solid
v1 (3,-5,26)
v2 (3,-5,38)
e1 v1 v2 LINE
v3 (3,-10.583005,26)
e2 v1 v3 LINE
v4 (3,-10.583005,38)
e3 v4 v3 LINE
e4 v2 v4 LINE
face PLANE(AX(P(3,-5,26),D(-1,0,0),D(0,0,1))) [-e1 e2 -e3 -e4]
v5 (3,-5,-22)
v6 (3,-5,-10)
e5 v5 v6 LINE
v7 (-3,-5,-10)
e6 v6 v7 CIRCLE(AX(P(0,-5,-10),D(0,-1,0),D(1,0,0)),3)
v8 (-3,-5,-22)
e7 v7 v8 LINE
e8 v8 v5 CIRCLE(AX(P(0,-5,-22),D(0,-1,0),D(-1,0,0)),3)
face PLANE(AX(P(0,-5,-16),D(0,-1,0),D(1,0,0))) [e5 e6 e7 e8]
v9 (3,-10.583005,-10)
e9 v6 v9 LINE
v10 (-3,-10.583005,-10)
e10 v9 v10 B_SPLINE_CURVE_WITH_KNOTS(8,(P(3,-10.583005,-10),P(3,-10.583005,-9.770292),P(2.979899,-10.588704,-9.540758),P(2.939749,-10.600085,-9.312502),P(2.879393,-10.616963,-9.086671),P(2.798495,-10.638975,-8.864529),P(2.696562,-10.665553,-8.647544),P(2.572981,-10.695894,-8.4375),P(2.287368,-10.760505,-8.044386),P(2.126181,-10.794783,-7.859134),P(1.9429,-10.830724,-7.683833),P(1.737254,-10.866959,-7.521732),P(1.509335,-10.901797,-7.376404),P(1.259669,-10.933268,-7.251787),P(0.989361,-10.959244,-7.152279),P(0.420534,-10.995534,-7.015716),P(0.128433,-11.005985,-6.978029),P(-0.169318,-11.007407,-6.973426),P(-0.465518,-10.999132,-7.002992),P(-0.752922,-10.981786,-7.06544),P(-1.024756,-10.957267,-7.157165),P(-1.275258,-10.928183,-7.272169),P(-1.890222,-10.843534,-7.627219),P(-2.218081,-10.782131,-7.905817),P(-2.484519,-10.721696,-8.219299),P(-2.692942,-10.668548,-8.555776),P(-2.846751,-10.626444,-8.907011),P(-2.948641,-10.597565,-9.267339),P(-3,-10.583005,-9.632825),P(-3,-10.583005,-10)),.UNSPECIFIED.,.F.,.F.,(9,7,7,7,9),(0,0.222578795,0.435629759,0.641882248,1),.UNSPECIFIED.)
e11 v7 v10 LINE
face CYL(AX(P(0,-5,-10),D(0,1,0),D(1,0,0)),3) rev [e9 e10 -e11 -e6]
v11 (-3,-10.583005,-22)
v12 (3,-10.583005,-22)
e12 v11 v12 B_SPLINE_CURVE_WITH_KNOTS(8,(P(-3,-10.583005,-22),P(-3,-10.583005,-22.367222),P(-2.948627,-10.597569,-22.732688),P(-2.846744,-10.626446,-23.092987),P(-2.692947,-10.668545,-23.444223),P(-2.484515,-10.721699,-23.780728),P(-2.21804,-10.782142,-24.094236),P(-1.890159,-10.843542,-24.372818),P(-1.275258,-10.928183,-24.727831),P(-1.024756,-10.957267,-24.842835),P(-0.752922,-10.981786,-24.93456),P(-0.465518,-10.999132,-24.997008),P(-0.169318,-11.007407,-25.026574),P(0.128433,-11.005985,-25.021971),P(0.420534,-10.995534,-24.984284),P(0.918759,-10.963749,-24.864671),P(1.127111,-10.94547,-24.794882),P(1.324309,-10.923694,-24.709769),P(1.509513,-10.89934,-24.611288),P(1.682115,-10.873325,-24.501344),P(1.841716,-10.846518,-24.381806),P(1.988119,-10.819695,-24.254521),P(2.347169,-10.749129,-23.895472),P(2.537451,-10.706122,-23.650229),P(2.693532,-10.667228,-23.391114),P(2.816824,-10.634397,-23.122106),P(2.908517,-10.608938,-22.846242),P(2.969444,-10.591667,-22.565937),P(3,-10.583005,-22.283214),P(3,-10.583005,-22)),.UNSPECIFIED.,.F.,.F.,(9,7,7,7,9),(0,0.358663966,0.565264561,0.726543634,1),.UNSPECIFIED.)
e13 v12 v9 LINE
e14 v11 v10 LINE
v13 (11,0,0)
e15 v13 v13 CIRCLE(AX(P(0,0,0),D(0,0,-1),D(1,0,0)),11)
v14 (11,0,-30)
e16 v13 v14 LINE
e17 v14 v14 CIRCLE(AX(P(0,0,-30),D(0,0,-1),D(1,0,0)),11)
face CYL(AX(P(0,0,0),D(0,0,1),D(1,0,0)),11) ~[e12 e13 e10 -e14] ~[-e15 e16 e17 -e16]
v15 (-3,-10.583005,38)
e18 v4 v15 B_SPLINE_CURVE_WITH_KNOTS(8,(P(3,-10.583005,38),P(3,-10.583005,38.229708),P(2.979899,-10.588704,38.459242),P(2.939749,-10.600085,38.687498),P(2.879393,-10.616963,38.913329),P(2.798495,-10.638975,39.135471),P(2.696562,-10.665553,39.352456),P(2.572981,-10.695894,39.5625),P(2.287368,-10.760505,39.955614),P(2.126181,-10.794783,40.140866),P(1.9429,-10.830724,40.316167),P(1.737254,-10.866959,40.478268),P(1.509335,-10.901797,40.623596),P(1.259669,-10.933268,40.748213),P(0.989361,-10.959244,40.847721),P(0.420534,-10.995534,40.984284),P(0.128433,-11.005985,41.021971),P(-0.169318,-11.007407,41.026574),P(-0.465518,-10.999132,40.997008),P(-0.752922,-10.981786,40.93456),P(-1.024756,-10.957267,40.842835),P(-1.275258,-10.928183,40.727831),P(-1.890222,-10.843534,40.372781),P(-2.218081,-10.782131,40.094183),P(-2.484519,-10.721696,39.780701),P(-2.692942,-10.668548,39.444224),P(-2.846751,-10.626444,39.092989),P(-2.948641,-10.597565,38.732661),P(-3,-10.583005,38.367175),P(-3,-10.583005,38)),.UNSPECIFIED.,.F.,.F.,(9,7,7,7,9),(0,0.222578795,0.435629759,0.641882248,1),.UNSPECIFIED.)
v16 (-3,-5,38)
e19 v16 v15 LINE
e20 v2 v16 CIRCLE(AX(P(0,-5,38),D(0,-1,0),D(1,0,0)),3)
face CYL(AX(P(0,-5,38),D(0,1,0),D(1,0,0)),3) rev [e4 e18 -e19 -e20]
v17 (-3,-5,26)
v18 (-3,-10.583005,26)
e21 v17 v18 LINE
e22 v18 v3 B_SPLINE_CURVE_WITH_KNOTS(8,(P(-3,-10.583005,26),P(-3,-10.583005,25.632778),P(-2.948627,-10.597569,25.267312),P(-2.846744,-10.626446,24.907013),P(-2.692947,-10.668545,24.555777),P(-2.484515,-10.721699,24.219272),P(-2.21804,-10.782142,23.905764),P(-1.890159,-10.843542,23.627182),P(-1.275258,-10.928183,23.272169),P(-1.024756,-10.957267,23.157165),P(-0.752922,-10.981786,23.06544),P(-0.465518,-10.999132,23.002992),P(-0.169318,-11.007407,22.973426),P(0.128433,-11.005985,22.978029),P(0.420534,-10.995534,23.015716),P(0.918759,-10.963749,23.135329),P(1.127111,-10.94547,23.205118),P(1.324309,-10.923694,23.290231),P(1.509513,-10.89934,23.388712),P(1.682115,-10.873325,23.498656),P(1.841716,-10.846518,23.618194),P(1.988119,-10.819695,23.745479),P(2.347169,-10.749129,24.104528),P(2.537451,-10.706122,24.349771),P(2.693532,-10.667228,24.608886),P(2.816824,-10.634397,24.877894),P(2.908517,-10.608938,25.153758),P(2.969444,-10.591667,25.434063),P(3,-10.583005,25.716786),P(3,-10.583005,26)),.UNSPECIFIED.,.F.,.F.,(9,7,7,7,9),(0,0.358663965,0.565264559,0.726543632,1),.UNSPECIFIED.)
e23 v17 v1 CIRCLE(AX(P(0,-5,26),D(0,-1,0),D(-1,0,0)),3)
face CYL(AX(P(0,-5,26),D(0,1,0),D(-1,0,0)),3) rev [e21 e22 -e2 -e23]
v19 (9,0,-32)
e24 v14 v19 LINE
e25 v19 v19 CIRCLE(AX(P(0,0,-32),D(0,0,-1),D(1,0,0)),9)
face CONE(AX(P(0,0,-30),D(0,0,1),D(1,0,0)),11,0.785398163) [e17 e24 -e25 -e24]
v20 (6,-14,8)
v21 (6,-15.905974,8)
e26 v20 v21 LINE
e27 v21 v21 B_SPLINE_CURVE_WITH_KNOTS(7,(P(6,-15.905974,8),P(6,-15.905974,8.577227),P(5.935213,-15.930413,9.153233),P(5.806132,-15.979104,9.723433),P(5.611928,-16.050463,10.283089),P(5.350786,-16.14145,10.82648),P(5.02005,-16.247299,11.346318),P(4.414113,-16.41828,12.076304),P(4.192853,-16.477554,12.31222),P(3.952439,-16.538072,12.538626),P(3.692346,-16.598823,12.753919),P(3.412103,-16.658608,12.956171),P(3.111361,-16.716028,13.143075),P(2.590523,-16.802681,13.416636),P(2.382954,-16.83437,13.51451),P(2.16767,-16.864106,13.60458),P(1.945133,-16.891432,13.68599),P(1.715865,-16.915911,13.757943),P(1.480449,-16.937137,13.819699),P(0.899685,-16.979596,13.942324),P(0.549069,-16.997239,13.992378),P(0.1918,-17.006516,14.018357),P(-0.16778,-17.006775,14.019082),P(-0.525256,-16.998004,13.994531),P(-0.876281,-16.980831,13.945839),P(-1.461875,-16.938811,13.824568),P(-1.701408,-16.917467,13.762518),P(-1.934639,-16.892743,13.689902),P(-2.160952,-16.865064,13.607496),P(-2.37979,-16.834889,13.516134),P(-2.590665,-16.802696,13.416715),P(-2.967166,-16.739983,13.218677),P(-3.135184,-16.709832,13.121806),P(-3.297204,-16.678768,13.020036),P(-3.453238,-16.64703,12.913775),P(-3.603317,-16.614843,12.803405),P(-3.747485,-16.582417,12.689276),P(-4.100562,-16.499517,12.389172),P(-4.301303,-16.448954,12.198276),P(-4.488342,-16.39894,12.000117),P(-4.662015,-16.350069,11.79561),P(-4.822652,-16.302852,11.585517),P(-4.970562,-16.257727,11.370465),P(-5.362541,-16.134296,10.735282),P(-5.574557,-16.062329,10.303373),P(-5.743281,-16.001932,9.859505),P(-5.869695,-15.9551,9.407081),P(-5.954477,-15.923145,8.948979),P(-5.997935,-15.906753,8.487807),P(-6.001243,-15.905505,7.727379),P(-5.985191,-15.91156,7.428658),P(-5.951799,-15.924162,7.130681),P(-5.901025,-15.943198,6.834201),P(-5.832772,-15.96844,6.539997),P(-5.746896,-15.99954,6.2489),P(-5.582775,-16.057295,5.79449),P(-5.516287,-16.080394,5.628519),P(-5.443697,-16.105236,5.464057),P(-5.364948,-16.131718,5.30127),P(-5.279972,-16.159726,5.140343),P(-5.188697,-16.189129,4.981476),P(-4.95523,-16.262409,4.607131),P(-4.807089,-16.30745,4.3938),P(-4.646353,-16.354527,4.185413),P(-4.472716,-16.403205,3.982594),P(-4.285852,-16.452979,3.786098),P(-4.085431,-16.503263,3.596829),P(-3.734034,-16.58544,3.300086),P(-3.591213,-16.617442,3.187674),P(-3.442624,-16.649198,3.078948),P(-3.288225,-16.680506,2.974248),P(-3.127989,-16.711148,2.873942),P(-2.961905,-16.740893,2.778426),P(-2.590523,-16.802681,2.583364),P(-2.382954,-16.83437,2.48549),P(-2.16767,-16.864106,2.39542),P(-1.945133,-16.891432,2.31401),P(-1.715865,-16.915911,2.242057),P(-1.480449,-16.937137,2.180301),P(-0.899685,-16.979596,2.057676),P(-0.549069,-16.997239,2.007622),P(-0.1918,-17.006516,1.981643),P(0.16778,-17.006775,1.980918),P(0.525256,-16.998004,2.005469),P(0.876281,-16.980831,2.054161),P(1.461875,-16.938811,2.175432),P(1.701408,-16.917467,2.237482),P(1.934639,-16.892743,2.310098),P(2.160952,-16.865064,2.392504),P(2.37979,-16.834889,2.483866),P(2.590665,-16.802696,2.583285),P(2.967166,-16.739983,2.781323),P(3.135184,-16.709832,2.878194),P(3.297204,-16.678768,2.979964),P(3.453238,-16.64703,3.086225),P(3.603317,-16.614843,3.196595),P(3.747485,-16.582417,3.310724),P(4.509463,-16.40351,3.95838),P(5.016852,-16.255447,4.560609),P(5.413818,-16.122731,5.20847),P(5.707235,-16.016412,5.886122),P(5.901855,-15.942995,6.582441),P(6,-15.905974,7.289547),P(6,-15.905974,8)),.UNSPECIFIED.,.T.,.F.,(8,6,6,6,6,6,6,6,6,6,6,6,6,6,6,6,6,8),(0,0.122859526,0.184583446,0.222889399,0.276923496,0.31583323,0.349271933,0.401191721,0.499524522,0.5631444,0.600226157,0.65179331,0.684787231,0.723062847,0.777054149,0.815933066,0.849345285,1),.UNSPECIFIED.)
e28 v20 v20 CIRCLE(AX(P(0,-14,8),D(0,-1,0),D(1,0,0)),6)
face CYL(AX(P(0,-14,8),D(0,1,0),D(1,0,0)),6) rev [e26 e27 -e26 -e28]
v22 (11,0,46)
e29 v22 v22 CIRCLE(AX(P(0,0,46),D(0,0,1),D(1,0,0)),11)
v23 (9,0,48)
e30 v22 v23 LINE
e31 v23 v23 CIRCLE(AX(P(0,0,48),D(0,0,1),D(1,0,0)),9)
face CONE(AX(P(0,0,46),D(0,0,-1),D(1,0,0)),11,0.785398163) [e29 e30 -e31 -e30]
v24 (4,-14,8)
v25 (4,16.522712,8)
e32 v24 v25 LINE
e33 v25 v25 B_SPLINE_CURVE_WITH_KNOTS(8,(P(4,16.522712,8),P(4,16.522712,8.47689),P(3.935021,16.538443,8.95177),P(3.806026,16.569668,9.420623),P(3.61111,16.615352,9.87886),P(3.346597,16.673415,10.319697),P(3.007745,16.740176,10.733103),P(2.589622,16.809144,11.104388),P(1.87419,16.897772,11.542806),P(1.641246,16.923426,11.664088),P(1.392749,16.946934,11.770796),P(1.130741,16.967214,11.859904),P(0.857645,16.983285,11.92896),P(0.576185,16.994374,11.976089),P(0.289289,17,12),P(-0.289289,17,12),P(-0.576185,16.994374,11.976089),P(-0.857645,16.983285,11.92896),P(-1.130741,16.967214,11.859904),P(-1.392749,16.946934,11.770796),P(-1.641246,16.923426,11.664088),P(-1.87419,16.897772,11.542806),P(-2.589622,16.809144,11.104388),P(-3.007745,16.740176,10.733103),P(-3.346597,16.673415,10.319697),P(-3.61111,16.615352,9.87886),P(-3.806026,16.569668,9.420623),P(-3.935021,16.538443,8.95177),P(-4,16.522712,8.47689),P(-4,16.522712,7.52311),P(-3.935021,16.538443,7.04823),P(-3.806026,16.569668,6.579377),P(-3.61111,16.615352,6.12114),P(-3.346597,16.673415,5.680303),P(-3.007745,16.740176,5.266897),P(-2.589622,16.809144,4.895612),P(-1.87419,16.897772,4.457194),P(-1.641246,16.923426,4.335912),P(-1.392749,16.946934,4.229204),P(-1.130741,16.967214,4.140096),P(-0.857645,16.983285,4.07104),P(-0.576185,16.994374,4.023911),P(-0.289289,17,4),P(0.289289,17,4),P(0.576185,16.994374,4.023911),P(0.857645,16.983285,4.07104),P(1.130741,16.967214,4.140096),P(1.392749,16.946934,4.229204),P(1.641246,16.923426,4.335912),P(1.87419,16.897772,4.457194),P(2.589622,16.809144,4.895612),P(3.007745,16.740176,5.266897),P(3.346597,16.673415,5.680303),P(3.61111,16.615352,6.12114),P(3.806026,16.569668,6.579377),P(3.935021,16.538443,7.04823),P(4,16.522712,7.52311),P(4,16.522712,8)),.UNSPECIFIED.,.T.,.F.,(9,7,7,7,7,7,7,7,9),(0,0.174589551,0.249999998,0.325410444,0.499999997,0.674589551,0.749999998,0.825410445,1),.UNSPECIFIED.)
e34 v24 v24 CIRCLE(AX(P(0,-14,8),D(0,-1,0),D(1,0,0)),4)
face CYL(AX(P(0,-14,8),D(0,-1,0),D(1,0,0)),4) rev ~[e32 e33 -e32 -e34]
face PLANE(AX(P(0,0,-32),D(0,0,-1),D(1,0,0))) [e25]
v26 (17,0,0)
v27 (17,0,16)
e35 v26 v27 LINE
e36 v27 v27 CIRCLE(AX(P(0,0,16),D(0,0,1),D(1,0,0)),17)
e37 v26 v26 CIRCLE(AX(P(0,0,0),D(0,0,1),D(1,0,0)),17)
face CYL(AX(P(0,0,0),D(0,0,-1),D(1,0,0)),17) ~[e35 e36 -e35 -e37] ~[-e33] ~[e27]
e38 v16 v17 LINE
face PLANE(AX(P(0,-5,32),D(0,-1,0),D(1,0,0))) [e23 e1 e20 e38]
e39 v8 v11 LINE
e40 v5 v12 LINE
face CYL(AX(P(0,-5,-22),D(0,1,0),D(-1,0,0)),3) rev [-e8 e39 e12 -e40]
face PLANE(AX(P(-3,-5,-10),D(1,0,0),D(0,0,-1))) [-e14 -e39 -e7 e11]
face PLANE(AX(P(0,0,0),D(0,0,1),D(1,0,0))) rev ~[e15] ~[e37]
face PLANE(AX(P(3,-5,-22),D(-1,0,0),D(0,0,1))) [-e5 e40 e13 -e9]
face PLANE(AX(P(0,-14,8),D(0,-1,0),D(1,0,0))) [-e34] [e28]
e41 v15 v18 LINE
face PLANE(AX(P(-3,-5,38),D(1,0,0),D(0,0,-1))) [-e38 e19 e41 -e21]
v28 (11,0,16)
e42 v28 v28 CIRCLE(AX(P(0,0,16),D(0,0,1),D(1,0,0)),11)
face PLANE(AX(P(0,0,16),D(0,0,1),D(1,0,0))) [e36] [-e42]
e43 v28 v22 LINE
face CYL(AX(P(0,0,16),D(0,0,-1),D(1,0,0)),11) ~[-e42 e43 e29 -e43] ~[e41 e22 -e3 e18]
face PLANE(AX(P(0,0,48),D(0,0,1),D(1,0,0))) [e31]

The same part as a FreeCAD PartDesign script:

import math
import FreeCAD as App
import Part
import Sketcher

V = App.Vector
Q = App.Units.Quantity


def edges_at(feature, points):
    """Names of the edges that pass closest to the given points."""
    edges = feature.Shape.Edges
    near = lambda p: min(range(len(edges)), key=lambda i: edges[i].distToShape(Part.Vertex(*p))[0])
    return sorted({f"Edge{near(p) + 1}" for p in points})

doc = App.newDocument("Part")
body = doc.addObject("PartDesign::Body", "Body")

# Sketch on XY plane
sketch1 = doc.addObject("Sketcher::SketchObject", "Sketch")
body.addObject(sketch1)
sketch1.AttachmentSupport = (doc.XY_Plane, [""])
sketch1.MapMode = "FlatFace"
sketch1.addGeometry(Part.Circle(V(0, 0, 0), V(0, 0, 1), 17), False)
sketch1.addConstraint(Sketcher.Constraint("Coincident", 0, 3, -1, 1))
sketch1.addConstraint(Sketcher.Constraint("Diameter", 0, Q("34 mm")))
pad1 = doc.addObject("PartDesign::Pad", "Pad")
body.addObject(pad1)
pad1.Profile = sketch1
pad1.Length = 16

# Sketch on XY plane
sketch2 = doc.addObject("Sketcher::SketchObject", "Sketch001")
body.addObject(sketch2)
sketch2.AttachmentSupport = (doc.XY_Plane, [""])
sketch2.MapMode = "FlatFace"
sketch2.addGeometry(Part.Circle(V(0, 0, 0), V(0, 0, 1), 11), False)
sketch2.addConstraint(Sketcher.Constraint("Coincident", 0, 3, -1, 1))
sketch2.addConstraint(Sketcher.Constraint("Diameter", 0, Q("22 mm")))
pad2 = doc.addObject("PartDesign::Pad", "Pad001")
body.addObject(pad2)
pad2.Profile = sketch2
pad2.Length = 32
pad2.Reversed = True
doc.recompute()

chamfer = doc.addObject("PartDesign::Chamfer", "Chamfer")
body.addObject(chamfer)
chamfer.Base = (pad2, edges_at(pad2, [(-11, 0, -32)]))
chamfer.Size = 2

# Sketch on XY plane
sketch3 = doc.addObject("Sketcher::SketchObject", "Sketch002")
body.addObject(sketch3)
sketch3.AttachmentSupport = (doc.XY_Plane, [""])
sketch3.MapMode = "FlatFace"
sketch3.AttachmentOffset = App.Placement(V(0, 0, 16), App.Rotation())
sketch3.addGeometry(Part.Circle(V(0, 0, 0), V(0, 0, 1), 11), False)
sketch3.addConstraint(Sketcher.Constraint("Coincident", 0, 3, -1, 1))
sketch3.addConstraint(Sketcher.Constraint("Diameter", 0, Q("22 mm")))
pad3 = doc.addObject("PartDesign::Pad", "Pad002")
body.addObject(pad3)
pad3.Profile = sketch3
pad3.Length = 32
doc.recompute()

chamfer2 = doc.addObject("PartDesign::Chamfer", "Chamfer001")
body.addObject(chamfer2)
chamfer2.Base = (pad3, edges_at(pad3, [(-11, 0, 48)]))
chamfer2.Size = 2

# Sketch on XZ plane
sketch4 = doc.addObject("Sketcher::SketchObject", "Sketch003")
body.addObject(sketch4)
sketch4.AttachmentSupport = (doc.XZ_Plane, [""])
sketch4.MapMode = "FlatFace"
sketch4.AttachmentOffset = App.Placement(V(0, 0, 14), App.Rotation())
sketch4.addGeometry(Part.Circle(V(0, 8, 0), V(0, 0, 1), 6), False)
sketch4.addConstraint(Sketcher.Constraint("PointOnObject", 0, 3, -2))
sketch4.addConstraint(Sketcher.Constraint("Diameter", 0, Q("12 mm")))
sketch4.addConstraint(Sketcher.Constraint("DistanceY", -1, 1, 0, 3, Q("8 mm")))
pocket1 = doc.addObject("PartDesign::Pocket", "Pocket")
body.addObject(pocket1)
pocket1.Profile = sketch4
pocket1.Type = "ThroughAll"
pocket1.Reversed = True

# Sketch on XZ plane
sketch5 = doc.addObject("Sketcher::SketchObject", "Sketch004")
body.addObject(sketch5)
sketch5.AttachmentSupport = (doc.XZ_Plane, [""])
sketch5.MapMode = "FlatFace"
sketch5.AttachmentOffset = App.Placement(V(0, 0, 14), App.Rotation())
sketch5.addGeometry(Part.Circle(V(0, 8, 0), V(0, 0, 1), 4), False)
sketch5.addConstraint(Sketcher.Constraint("PointOnObject", 0, 3, -2))
sketch5.addConstraint(Sketcher.Constraint("Diameter", 0, Q("8 mm")))
sketch5.addConstraint(Sketcher.Constraint("DistanceY", -1, 1, 0, 3, Q("8 mm")))
pocket2 = doc.addObject("PartDesign::Pocket", "Pocket001")
body.addObject(pocket2)
pocket2.Profile = sketch5
pocket2.Type = "ThroughAll"

# Sketch on XZ plane
sketch6 = doc.addObject("Sketcher::SketchObject", "Sketch005")
body.addObject(sketch6)
sketch6.AttachmentSupport = (doc.XZ_Plane, [""])
sketch6.MapMode = "FlatFace"
sketch6.AttachmentOffset = App.Placement(V(0, 0, 5), App.Rotation())
sketch6.addGeometry(Part.ArcOfCircle(Part.Circle(V(0, 26, 0), V(0, 0, 1), 3), math.radians(180), math.radians(360)), False)
sketch6.addGeometry(Part.LineSegment(V(3, 26, 0), V(3, 38, 0)), False)
sketch6.addGeometry(Part.ArcOfCircle(Part.Circle(V(0, 38, 0), V(0, 0, 1), 3), math.radians(0), math.radians(180)), False)
sketch6.addGeometry(Part.LineSegment(V(-3, 38, 0), V(-3, 26, 0)), False)
sketch6.addConstraint(Sketcher.Constraint("Tangent", 0, 2, 1, 1))
sketch6.addConstraint(Sketcher.Constraint("Tangent", 1, 2, 2, 1))
sketch6.addConstraint(Sketcher.Constraint("Tangent", 2, 2, 3, 1))
sketch6.addConstraint(Sketcher.Constraint("Tangent", 3, 2, 0, 1))
sketch6.addConstraint(Sketcher.Constraint("Vertical", 1))
sketch6.addConstraint(Sketcher.Constraint("Vertical", 3))
sketch6.addConstraint(Sketcher.Constraint("PointOnObject", 0, 3, -2))
sketch6.addConstraint(Sketcher.Constraint("Radius", 0, Q("3 mm")))
sketch6.addConstraint(Sketcher.Constraint("DistanceY", 1, 1, 1, 2, Q("12 mm")))
sketch6.addConstraint(Sketcher.Constraint("DistanceY", -1, 1, 0, 3, Q("26 mm")))
pocket3 = doc.addObject("PartDesign::Pocket", "Pocket002")
body.addObject(pocket3)
pocket3.Profile = sketch6
pocket3.Type = "ThroughAll"
pocket3.Reversed = True

# Sketch on XZ plane
sketch7 = doc.addObject("Sketcher::SketchObject", "Sketch006")
body.addObject(sketch7)
sketch7.AttachmentSupport = (doc.XZ_Plane, [""])
sketch7.MapMode = "FlatFace"
sketch7.AttachmentOffset = App.Placement(V(0, 0, 5), App.Rotation())
sketch7.addGeometry(Part.LineSegment(V(3, -22, 0), V(3, -10, 0)), False)
sketch7.addGeometry(Part.ArcOfCircle(Part.Circle(V(0, -10, 0), V(0, 0, 1), 3), math.radians(0), math.radians(180)), False)
sketch7.addGeometry(Part.LineSegment(V(-3, -10, 0), V(-3, -22, 0)), False)
sketch7.addGeometry(Part.ArcOfCircle(Part.Circle(V(0, -22, 0), V(0, 0, 1), 3), math.radians(180), math.radians(360)), False)
sketch7.addConstraint(Sketcher.Constraint("Tangent", 0, 2, 1, 1))
sketch7.addConstraint(Sketcher.Constraint("Tangent", 1, 2, 2, 1))
sketch7.addConstraint(Sketcher.Constraint("Tangent", 2, 2, 3, 1))
sketch7.addConstraint(Sketcher.Constraint("Tangent", 3, 2, 0, 1))
sketch7.addConstraint(Sketcher.Constraint("Vertical", 0))
sketch7.addConstraint(Sketcher.Constraint("Vertical", 2))
sketch7.addConstraint(Sketcher.Constraint("PointOnObject", 1, 3, -2))
sketch7.addConstraint(Sketcher.Constraint("Radius", 1, Q("3 mm")))
sketch7.addConstraint(Sketcher.Constraint("DistanceY", 0, 1, 0, 2, Q("12 mm")))
sketch7.addConstraint(Sketcher.Constraint("DistanceY", 1, 3, -1, 1, Q("10 mm")))
pocket4 = doc.addObject("PartDesign::Pocket", "Pocket003")
body.addObject(pocket4)
pocket4.Profile = sketch7
pocket4.Type = "ThroughAll"
pocket4.Reversed = True

doc.recompute()
